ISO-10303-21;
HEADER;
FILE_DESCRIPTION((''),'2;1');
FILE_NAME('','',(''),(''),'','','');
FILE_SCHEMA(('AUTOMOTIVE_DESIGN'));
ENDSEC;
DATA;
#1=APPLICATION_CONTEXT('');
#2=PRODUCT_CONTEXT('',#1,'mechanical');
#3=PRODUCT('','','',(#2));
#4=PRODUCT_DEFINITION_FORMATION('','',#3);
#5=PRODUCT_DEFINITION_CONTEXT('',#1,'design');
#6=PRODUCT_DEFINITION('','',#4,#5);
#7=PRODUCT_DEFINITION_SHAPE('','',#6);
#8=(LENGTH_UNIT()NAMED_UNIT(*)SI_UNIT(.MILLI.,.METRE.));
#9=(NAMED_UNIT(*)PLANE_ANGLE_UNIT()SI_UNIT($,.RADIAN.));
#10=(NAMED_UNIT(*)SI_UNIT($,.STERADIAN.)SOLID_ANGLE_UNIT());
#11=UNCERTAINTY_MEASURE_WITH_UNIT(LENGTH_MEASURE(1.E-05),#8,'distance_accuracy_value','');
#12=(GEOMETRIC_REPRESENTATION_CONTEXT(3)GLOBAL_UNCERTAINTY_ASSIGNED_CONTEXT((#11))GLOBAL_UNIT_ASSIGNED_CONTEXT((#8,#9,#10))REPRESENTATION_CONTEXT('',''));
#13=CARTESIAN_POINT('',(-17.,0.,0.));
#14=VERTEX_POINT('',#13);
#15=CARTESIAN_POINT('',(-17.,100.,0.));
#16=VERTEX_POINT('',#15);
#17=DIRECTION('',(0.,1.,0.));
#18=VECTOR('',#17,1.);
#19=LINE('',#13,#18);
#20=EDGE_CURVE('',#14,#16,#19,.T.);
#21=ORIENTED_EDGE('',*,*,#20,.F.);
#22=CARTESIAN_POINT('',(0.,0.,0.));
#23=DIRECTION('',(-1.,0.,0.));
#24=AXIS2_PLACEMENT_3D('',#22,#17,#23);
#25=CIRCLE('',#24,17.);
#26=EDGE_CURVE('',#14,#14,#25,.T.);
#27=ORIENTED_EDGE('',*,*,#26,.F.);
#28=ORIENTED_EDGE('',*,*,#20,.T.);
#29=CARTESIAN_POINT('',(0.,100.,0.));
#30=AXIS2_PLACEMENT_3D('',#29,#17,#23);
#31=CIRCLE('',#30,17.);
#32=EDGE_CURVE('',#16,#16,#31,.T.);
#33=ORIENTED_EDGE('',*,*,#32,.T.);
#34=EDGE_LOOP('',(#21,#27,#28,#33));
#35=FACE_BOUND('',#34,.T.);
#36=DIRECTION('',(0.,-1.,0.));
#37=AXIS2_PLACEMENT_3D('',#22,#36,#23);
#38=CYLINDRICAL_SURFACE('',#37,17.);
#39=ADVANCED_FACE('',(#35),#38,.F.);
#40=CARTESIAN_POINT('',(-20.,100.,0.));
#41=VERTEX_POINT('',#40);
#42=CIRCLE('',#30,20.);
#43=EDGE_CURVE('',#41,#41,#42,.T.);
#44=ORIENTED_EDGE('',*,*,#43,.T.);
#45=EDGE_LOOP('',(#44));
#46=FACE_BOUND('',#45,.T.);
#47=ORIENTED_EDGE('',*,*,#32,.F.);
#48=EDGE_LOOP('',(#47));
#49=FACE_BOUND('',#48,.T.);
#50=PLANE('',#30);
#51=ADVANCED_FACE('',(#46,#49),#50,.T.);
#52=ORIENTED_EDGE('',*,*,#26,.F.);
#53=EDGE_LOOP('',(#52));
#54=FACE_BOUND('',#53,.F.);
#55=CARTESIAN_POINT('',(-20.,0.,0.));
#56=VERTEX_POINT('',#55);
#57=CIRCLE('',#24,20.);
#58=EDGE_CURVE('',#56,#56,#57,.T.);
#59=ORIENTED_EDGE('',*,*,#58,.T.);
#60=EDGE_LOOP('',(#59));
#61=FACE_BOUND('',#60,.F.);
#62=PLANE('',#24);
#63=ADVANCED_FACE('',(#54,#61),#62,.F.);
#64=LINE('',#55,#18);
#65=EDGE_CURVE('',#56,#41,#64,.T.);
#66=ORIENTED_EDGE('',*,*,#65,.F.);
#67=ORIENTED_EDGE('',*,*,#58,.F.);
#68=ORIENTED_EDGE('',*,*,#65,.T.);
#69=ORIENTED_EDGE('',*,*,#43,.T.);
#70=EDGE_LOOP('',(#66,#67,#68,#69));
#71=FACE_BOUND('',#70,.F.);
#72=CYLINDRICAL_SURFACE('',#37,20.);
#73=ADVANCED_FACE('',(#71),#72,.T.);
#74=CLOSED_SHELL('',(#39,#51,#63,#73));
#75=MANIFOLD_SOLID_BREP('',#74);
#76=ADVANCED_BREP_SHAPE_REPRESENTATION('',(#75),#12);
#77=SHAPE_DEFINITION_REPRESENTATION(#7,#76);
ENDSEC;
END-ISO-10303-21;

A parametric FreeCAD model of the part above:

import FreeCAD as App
import Part
import Sketcher
Q = App.Units.Quantity

doc = App.newDocument("Part")
body = doc.addObject("PartDesign::Body", "Body")

# Sketch on XZ plane
sketch1 = body.newObject("Sketcher::SketchObject", "Sketch")
sketch1.AttachmentSupport = (doc.getObject("XZ_Plane"), [""])
sketch1.MapMode = "FlatFace"
sketch1.addGeometry([
    Part.Circle(App.Vector(0, 0, 0), App.Vector(0, 0, 1), 20),
    Part.Circle(App.Vector(0, 0, 0), App.Vector(0, 0, 1), 17),
], False)
sketch1.addConstraint([
    Sketcher.Constraint("Coincident", 0, 3, -1, 1),
    Sketcher.Constraint("Coincident", 1, 3, -1, 1),
    Sketcher.Constraint("Diameter", 0, Q("40 mm")),
    Sketcher.Constraint("Diameter", 1, Q("34 mm")),
])
pad1 = body.newObject("PartDesign::Pad", "Pad")
pad1.Profile = sketch1
pad1.Length = 100
pad1.Reversed = True

doc.recompute()
